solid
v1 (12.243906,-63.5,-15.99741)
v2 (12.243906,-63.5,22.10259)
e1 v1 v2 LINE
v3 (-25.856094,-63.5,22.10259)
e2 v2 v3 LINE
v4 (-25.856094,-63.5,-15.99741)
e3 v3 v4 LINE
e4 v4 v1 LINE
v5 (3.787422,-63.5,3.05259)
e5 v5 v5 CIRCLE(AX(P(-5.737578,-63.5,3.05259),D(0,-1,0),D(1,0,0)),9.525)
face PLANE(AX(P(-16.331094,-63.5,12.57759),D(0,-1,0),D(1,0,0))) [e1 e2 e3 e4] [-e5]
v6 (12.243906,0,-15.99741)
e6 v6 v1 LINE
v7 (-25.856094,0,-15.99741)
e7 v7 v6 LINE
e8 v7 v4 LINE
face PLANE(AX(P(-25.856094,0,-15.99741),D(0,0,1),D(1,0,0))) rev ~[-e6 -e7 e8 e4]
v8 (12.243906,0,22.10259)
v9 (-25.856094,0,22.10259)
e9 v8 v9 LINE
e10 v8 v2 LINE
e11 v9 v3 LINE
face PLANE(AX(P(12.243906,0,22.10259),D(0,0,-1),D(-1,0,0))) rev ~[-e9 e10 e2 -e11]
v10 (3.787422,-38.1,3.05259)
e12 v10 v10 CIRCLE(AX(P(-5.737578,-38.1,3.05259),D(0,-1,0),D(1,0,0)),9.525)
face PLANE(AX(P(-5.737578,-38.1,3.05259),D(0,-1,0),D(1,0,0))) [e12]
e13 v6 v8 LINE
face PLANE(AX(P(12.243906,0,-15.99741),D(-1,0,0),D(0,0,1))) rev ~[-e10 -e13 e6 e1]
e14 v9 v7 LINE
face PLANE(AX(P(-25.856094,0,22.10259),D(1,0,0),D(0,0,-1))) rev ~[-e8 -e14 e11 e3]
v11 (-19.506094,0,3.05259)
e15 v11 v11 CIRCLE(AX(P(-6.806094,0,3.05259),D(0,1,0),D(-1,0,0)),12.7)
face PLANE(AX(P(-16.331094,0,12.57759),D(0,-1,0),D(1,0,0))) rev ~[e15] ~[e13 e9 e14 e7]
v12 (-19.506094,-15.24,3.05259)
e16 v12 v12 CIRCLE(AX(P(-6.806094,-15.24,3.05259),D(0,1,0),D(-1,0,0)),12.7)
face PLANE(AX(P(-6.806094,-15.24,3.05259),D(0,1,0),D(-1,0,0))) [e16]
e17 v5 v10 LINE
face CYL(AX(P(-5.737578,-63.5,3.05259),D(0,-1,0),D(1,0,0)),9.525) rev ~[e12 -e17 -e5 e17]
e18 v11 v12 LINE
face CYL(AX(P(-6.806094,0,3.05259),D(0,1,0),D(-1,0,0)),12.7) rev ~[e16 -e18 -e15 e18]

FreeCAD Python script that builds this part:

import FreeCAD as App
import Part
import Sketcher

V = App.Vector
Q = App.Units.Quantity


def add_polygon(sketch, points):
    """Adds a closed chain of lines whose ends are joined by coincident constraints."""
    first, n = sketch.GeometryCount, len(points)
    for a, b in zip(points, points[1:] + points[:1]):
        sketch.addGeometry(Part.LineSegment(App.Vector(*a, 0), App.Vector(*b, 0)), False)
    for i in range(n):
        sketch.addConstraint(Sketcher.Constraint("Coincident", first + i, 2, first + (i + 1) % n, 1))

doc = App.newDocument("Part")
body = doc.addObject("PartDesign::Body", "Body")

sketch1 = body.newObject("Sketcher::SketchObject", "Sketch")
sketch1.AttachmentSupport = (doc.getObject("XZ_Plane"), [""])
sketch1.MapMode = "FlatFace"
add_polygon(sketch1, [(-26, 22), (-26, -16), (12, -16), (12, 22)])
sketch1.addConstraint([
    Sketcher.Constraint("Vertical", 0),
    Sketcher.Constraint("Horizontal", 1),
    Sketcher.Constraint("Vertical", 2),
    Sketcher.Constraint("Horizontal", 3),
    Sketcher.Constraint("Equal", 3, 0),
    Sketcher.Constraint("DistanceX", 1, 1, 1, 2, Q("1.5 in")),
    Sketcher.Constraint("DistanceY", 0, 2, -1, 1, 15.99741),
    Sketcher.Constraint("DistanceX", 0, 2, -1, 1, 25.856094),
])
pad1 = body.newObject("PartDesign::Pad", "Pad")
pad1.Profile = sketch1
pad1.Length = Q("2.5 in")

sketch2 = body.newObject("Sketcher::SketchObject", "Sketch001")
sketch2.AttachmentSupport = (doc.getObject("XZ_Plane"), [""])
sketch2.MapMode = "FlatFace"
sketch2.addGeometry(Part.Circle(V(-7, 3, 0), V(0, 0, 1), 13), False)
sketch2.addConstraint([
    Sketcher.Constraint("Diameter", 0, Q("1 in")),
    Sketcher.Constraint("DistanceY", -1, 1, 0, 3, 3.05259),
    Sketcher.Constraint("DistanceX", 0, 3, -1, 1, 6.806094),
])
pocket1 = body.newObject("PartDesign::Pocket", "Pocket")
pocket1.Profile = sketch2
pocket1.Length = Q("0.6 in")
pocket1.Reversed = True

sketch3 = body.newObject("Sketcher::SketchObject", "Sketch002")
sketch3.AttachmentSupport = (doc.getObject("XZ_Plane"), [""])
sketch3.MapMode = "FlatFace"
sketch3.AttachmentOffset = App.Placement(V(0, 0, 2.5 * 25.4), App.Rotation())
sketch3.addGeometry(Part.Circle(V(-6, 3, 0), V(0, 0, 1), 10), False)
sketch3.addConstraint([
    Sketcher.Constraint("Diameter", 0, Q("0.75 in")),
    Sketcher.Constraint("DistanceY", -1, 1, 0, 3, 3.05259),
    Sketcher.Constraint("DistanceX", 0, 3, -1, 1, 5.737578),
])
pocket2 = body.newObject("PartDesign::Pocket", "Pocket001")
pocket2.Profile = sketch3
pocket2.Length = Q("1 in")

doc.recompute()
